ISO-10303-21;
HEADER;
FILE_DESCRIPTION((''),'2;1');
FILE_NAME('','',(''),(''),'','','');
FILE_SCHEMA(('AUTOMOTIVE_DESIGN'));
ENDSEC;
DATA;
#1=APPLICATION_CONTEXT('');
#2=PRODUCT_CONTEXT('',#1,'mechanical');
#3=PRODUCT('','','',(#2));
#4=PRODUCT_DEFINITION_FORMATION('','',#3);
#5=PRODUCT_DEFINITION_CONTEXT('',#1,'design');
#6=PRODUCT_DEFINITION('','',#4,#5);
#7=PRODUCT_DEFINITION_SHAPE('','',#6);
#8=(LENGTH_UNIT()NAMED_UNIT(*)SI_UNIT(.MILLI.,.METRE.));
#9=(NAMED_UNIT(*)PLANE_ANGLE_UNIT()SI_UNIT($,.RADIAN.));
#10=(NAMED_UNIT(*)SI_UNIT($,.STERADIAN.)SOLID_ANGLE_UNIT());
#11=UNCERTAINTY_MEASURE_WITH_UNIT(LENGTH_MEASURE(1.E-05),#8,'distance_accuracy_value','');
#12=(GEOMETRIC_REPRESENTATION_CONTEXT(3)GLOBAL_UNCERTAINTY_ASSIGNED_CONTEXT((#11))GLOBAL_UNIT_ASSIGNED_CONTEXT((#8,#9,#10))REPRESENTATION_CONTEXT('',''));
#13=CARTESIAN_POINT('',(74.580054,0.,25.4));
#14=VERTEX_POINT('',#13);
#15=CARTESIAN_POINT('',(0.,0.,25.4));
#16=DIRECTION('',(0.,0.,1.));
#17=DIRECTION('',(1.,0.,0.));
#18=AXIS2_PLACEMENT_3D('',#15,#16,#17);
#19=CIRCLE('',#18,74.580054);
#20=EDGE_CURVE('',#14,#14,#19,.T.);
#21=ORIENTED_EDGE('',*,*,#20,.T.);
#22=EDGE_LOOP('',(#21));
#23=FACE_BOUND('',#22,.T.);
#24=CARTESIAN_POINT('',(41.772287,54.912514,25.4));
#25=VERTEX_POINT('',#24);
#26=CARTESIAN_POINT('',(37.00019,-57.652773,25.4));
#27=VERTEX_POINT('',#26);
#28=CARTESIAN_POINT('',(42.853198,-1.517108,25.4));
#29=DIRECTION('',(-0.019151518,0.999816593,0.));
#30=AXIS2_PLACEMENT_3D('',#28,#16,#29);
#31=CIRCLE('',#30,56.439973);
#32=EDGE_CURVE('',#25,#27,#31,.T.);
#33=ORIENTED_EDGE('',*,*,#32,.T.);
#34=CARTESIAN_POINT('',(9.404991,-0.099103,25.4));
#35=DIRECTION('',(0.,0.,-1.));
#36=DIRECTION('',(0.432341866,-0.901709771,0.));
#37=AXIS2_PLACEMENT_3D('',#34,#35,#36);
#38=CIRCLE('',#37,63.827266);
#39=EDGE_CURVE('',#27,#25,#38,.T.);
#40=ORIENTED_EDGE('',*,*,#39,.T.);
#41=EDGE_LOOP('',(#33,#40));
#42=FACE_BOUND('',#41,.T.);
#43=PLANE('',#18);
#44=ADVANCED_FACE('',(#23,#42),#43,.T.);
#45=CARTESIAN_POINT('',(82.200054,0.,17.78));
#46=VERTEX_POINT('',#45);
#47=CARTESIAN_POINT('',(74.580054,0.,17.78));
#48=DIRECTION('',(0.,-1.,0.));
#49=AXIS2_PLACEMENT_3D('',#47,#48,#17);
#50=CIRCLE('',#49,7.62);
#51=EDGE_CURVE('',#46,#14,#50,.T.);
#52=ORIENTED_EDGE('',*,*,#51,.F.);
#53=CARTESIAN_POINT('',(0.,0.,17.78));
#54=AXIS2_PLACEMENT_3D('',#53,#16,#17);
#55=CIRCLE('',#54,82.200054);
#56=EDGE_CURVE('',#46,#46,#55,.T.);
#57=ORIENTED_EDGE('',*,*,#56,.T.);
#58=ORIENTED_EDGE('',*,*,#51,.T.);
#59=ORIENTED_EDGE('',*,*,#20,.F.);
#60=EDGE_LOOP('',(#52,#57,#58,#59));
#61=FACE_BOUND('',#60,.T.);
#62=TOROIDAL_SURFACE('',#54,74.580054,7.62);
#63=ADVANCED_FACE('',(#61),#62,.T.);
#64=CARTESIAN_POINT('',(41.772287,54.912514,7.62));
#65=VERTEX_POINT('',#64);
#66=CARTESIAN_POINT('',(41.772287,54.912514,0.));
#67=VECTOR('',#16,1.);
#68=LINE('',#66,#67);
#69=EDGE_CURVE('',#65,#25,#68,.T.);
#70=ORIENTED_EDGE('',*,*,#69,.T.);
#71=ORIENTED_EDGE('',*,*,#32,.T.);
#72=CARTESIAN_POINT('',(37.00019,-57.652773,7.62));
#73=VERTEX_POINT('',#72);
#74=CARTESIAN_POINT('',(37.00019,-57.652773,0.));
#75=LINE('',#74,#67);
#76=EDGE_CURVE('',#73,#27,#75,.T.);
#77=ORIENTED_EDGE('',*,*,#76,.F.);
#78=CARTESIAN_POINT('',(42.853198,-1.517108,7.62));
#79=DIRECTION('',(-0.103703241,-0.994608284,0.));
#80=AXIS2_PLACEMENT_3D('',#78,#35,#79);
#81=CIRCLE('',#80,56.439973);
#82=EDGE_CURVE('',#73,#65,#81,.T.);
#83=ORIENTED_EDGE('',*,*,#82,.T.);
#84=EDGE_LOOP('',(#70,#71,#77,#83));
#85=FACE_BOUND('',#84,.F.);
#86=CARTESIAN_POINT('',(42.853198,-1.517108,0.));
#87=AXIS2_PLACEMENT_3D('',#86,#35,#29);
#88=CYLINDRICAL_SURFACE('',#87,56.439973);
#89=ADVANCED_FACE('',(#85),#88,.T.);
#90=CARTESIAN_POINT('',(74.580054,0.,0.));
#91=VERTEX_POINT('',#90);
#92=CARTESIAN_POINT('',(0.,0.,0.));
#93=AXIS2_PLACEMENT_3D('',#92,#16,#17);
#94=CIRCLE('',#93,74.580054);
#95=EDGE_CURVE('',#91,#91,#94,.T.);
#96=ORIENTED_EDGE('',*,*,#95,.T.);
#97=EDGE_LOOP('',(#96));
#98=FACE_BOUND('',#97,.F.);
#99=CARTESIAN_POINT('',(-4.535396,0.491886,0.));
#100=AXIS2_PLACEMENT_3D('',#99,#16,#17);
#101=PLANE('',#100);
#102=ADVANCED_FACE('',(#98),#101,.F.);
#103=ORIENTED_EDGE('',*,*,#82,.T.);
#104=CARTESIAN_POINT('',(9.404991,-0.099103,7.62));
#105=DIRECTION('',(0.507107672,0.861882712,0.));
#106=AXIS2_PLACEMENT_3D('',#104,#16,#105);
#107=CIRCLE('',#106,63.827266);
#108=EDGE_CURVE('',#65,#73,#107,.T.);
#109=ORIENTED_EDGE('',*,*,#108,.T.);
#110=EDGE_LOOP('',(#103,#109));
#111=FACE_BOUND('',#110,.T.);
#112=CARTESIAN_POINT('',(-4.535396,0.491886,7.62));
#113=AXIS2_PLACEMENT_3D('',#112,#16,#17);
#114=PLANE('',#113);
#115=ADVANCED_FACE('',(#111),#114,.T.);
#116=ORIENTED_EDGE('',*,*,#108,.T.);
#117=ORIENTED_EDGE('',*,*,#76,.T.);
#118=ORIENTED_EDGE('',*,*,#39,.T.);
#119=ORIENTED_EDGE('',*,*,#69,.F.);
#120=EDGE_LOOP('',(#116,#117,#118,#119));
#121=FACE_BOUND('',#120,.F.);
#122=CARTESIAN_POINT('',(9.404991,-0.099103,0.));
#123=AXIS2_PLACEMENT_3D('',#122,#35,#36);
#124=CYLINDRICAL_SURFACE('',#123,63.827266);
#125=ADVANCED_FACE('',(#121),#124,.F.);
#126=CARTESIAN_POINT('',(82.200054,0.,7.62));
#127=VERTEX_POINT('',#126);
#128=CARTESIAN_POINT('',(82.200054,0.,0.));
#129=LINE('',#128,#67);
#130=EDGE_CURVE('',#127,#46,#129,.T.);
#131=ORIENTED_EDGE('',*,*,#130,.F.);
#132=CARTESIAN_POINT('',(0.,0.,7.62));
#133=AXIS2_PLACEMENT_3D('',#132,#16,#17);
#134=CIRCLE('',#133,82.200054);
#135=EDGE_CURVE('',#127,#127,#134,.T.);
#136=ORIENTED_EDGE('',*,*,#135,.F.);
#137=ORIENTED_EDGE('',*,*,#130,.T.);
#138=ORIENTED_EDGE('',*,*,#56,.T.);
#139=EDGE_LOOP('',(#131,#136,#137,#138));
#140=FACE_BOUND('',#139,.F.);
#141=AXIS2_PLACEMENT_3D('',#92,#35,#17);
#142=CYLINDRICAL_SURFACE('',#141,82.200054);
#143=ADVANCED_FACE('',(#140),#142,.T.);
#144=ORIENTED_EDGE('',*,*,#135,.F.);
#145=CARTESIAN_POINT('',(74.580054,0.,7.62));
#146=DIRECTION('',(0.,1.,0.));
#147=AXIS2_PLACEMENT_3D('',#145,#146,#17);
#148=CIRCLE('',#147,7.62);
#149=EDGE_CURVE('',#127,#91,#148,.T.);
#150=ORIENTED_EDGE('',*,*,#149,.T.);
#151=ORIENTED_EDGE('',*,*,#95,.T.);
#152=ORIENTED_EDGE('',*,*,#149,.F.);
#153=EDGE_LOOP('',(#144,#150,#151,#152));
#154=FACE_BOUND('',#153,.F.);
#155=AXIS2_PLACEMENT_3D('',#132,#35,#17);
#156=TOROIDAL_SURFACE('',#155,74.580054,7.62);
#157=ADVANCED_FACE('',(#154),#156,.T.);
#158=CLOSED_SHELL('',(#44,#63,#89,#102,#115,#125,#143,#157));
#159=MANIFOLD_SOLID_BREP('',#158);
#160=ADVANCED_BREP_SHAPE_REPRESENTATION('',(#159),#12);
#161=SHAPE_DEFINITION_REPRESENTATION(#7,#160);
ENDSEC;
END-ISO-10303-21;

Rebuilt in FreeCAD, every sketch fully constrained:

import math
import FreeCAD as App
import Part
import Sketcher
Q = App.Units.Quantity


def edges_at(feature, points):
    """Names of the edges that pass closest to the given points."""
    edges = feature.Shape.Edges
    near = lambda p: min(range(len(edges)), key=lambda i: edges[i].distToShape(Part.Vertex(*p))[0])
    return sorted({f"Edge{near(p) + 1}" for p in points})

doc = App.newDocument("Part")
body = doc.addObject("PartDesign::Body", "Body")

sketch1 = body.newObject("Sketcher::SketchObject", "Sketch")
sketch1.AttachmentSupport = (doc.getObject("XY_Plane"), [""])
sketch1.MapMode = "FlatFace"
sketch1.addGeometry([
    Part.Circle(App.Vector(0, 0, 0), App.Vector(0, 0, 1), 82),
    Part.ArcOfCircle(Part.Circle(App.Vector(43, -2, 0), App.Vector(0, 0, 1), 56), math.radians(91), math.radians(264)),
    Part.ArcOfCircle(Part.Circle(App.Vector(9, 0, 0), App.Vector(0, 0, 1), 64), math.radians(60), math.radians(296)),
], False)
sketch1.addConstraint([
    Sketcher.Constraint("Coincident", 1, 1, 2, 1),
    Sketcher.Constraint("Coincident", 2, 2, 1, 2),
    Sketcher.Constraint("Coincident", 0, 3, -1, 1),
    Sketcher.Constraint("Diameter", 0, Q("164.400108 mm")),
    Sketcher.Constraint("Radius", 1, Q("56.439973 mm")),
    Sketcher.Constraint("Radius", 2, Q("63.827266 mm")),
    Sketcher.Constraint("DistanceX", -1, 1, 1, 3, Q("42.853198 mm")),
    Sketcher.Constraint("DistanceX", 2, 3, 2, 2, Q("27.595199 mm")),
    Sketcher.Constraint("DistanceX", -1, 1, 2, 3, Q("9.404991 mm")),
    Sketcher.Constraint("DistanceY", 1, 3, -1, 1, Q("1.517108 mm")),
])
pad1 = body.newObject("PartDesign::Pad", "Pad")
pad1.Profile = sketch1
pad1.Length = Q("1 in")
doc.recompute()

fillet = body.newObject("PartDesign::Fillet", "Fillet")
fillet.Base = (pad1, edges_at(pad1, [(-82.2, 0, 25.4), (-82.2, 0, 0)]))
fillet.Radius = Q("0.3 in")

sketch2 = body.newObject("Sketcher::SketchObject", "Sketch001")
sketch2.AttachmentSupport = (doc.getObject("XY_Plane"), [""])
sketch2.MapMode = "FlatFace"
sketch2.addGeometry([
    Part.ArcOfCircle(Part.Circle(App.Vector(43, -2, 0), App.Vector(0, 0, 1), 56), math.radians(91), math.radians(264)),
    Part.ArcOfCircle(Part.Circle(App.Vector(9, 0, 0), App.Vector(0, 0, 1), 64), math.radians(60), math.radians(296)),
], False)
sketch2.addConstraint([
    Sketcher.Constraint("Coincident", 0, 1, 1, 1),
    Sketcher.Constraint("Coincident", 1, 2, 0, 2),
    Sketcher.Constraint("Radius", 0, Q("56.439973 mm")),
    Sketcher.Constraint("Radius", 1, Q("63.827266 mm")),
    Sketcher.Constraint("DistanceX", -1, 1, 0, 3, Q("42.853198 mm")),
    Sketcher.Constraint("DistanceX", 1, 3, 1, 2, Q("27.595199 mm")),
    Sketcher.Constraint("DistanceX", -1, 1, 1, 3, Q("9.404991 mm")),
    Sketcher.Constraint("DistanceY", 0, 3, -1, 1, Q("1.517108 mm")),
])
pad2 = body.newObject("PartDesign::Pad", "Pad001")
pad2.Profile = sketch2
pad2.Length = Q("0.3 in")

doc.recompute()
